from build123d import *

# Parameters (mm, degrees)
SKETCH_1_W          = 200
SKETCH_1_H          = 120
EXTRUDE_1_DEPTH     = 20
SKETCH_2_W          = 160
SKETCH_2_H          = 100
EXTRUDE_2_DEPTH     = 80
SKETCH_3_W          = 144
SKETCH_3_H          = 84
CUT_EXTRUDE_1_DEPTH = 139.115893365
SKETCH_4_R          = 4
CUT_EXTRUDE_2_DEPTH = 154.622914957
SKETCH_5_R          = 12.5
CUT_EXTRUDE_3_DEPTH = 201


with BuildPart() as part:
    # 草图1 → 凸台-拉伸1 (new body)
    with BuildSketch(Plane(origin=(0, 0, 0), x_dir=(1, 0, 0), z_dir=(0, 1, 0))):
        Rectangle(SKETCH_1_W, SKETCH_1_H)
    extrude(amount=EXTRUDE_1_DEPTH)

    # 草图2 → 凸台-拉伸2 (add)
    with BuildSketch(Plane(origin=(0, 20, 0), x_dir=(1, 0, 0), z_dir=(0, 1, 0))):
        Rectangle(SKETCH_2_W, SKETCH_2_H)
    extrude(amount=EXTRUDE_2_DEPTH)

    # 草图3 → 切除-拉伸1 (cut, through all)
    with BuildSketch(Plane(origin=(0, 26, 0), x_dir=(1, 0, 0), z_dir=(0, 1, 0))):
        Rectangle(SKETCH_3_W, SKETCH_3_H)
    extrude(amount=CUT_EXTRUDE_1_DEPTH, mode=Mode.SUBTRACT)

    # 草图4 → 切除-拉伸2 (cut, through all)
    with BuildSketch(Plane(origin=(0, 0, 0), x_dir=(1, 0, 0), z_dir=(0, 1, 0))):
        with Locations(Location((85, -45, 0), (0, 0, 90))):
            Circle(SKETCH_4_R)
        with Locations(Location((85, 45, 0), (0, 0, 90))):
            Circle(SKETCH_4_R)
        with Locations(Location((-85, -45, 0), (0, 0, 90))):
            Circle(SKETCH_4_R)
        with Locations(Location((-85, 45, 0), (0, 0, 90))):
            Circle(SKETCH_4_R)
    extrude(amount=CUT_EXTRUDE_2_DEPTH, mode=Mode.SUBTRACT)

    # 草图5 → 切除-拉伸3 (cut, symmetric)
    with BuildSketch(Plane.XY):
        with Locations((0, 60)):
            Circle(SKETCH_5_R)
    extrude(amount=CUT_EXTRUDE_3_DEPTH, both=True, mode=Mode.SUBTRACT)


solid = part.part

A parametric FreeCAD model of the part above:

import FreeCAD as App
import Part
import Sketcher
from FreeCAD import Vector
Q = App.Units.Quantity

doc = App.newDocument("Part")
body = doc.addObject("PartDesign::Body", "Body")

# Sketch on XZ plane
sketch1 = body.newObject("Sketcher::SketchObject", "Sketch")
sketch1.AttachmentSupport = (doc.getObject("XZ_Plane"), [""])
sketch1.MapMode = "FlatFace"
sketch1.addGeometry(Part.LineSegment(Vector(-100, -60, 0), Vector(-100, 60, 0)), False)
sketch1.addGeometry(Part.LineSegment(Vector(-100, 60, 0), Vector(100, 60, 0)), False)
sketch1.addGeometry(Part.LineSegment(Vector(100, 60, 0), Vector(100, -60, 0)), False)
sketch1.addGeometry(Part.LineSegment(Vector(100, -60, 0), Vector(-100, -60, 0)), False)
sketch1.addConstraint(Sketcher.Constraint("Coincident", 0, 2, 1, 1))
sketch1.addConstraint(Sketcher.Constraint("Coincident", 1, 2, 2, 1))
sketch1.addConstraint(Sketcher.Constraint("Coincident", 2, 2, 3, 1))
sketch1.addConstraint(Sketcher.Constraint("Coincident", 3, 2, 0, 1))
sketch1.addConstraint(Sketcher.Constraint("Vertical", 0))
sketch1.addConstraint(Sketcher.Constraint("Horizontal", 1))
sketch1.addConstraint(Sketcher.Constraint("Vertical", 2))
sketch1.addConstraint(Sketcher.Constraint("Horizontal", 3))
sketch1.addConstraint(Sketcher.Constraint("Symmetric", 0, 2, 2, 2, -1, 1))
sketch1.addConstraint(Sketcher.Constraint("DistanceX", 1, 1, 1, 2, Q("200 mm")))
sketch1.addConstraint(Sketcher.Constraint("DistanceY", 0, 1, 0, 2, Q("120 mm")))
pad1 = body.newObject("PartDesign::Pad", "Pad")
pad1.Profile = sketch1
pad1.Length = 20
pad1.Reversed = True

# Sketch on XZ plane
sketch2 = body.newObject("Sketcher::SketchObject", "Sketch001")
sketch2.AttachmentSupport = (doc.getObject("XZ_Plane"), [""])
sketch2.MapMode = "FlatFace"
sketch2.AttachmentOffset = App.Placement(Vector(0, 0, -20), App.Rotation())
sketch2.addGeometry(Part.LineSegment(Vector(-80, -50, 0), Vector(-80, 50, 0)), False)
sketch2.addGeometry(Part.LineSegment(Vector(-80, 50, 0), Vector(80, 50, 0)), False)
sketch2.addGeometry(Part.LineSegment(Vector(80, 50, 0), Vector(80, -50, 0)), False)
sketch2.addGeometry(Part.LineSegment(Vector(80, -50, 0), Vector(-80, -50, 0)), False)
sketch2.addConstraint(Sketcher.Constraint("Coincident", 0, 2, 1, 1))
sketch2.addConstraint(Sketcher.Constraint("Coincident", 1, 2, 2, 1))
sketch2.addConstraint(Sketcher.Constraint("Coincident", 2, 2, 3, 1))
sketch2.addConstraint(Sketcher.Constraint("Coincident", 3, 2, 0, 1))
sketch2.addConstraint(Sketcher.Constraint("Vertical", 0))
sketch2.addConstraint(Sketcher.Constraint("Horizontal", 1))
sketch2.addConstraint(Sketcher.Constraint("Vertical", 2))
sketch2.addConstraint(Sketcher.Constraint("Horizontal", 3))
sketch2.addConstraint(Sketcher.Constraint("Symmetric", 0, 2, 2, 2, -1, 1))
sketch2.addConstraint(Sketcher.Constraint("DistanceX", 1, 1, 1, 2, Q("160 mm")))
sketch2.addConstraint(Sketcher.Constraint("DistanceY", 0, 1, 0, 2, Q("100 mm")))
pad2 = body.newObject("PartDesign::Pad", "Pad001")
pad2.Profile = sketch2
pad2.Length = 80
pad2.Reversed = True

# Sketch on XZ plane
sketch3 = body.newObject("Sketcher::SketchObject", "Sketch002")
sketch3.AttachmentSupport = (doc.getObject("XZ_Plane"), [""])
sketch3.MapMode = "FlatFace"
sketch3.AttachmentOffset = App.Placement(Vector(0, 0, -26), App.Rotation())
sketch3.addGeometry(Part.LineSegment(Vector(-72, -42, 0), Vector(-72, 42, 0)), False)
sketch3.addGeometry(Part.LineSegment(Vector(-72, 42, 0), Vector(72, 42, 0)), False)
sketch3.addGeometry(Part.LineSegment(Vector(72, 42, 0), Vector(72, -42, 0)), False)
sketch3.addGeometry(Part.LineSegment(Vector(72, -42, 0), Vector(-72, -42, 0)), False)
sketch3.addConstraint(Sketcher.Constraint("Coincident", 0, 2, 1, 1))
sketch3.addConstraint(Sketcher.Constraint("Coincident", 1, 2, 2, 1))
sketch3.addConstraint(Sketcher.Constraint("Coincident", 2, 2, 3, 1))
sketch3.addConstraint(Sketcher.Constraint("Coincident", 3, 2, 0, 1))
sketch3.addConstraint(Sketcher.Constraint("Vertical", 0))
sketch3.addConstraint(Sketcher.Constraint("Horizontal", 1))
sketch3.addConstraint(Sketcher.Constraint("Vertical", 2))
sketch3.addConstraint(Sketcher.Constraint("Horizontal", 3))
sketch3.addConstraint(Sketcher.Constraint("Symmetric", 0, 2, 2, 2, -1, 1))
sketch3.addConstraint(Sketcher.Constraint("DistanceX", 1, 1, 1, 2, Q("144 mm")))
sketch3.addConstraint(Sketcher.Constraint("DistanceY", 0, 1, 0, 2, Q("84 mm")))
pocket1 = body.newObject("PartDesign::Pocket", "Pocket")
pocket1.Profile = sketch3
pocket1.Type = "ThroughAll"

# Sketch on XZ plane
sketch4 = body.newObject("Sketcher::SketchObject", "Sketch003")
sketch4.AttachmentSupport = (doc.getObject("XZ_Plane"), [""])
sketch4.MapMode = "FlatFace"
sketch4.addGeometry(Part.Circle(Vector(85, 45, 0), Vector(0, 0, 1), 4), False)
sketch4.addGeometry(Part.Circle(Vector(85, -45, 0), Vector(0, 0, 1), 4), False)
sketch4.addGeometry(Part.Circle(Vector(-85, 45, 0), Vector(0, 0, 1), 4), False)
sketch4.addGeometry(Part.Circle(Vector(-85, -45, 0), Vector(0, 0, 1), 4), False)
sketch4.addConstraint(Sketcher.Constraint("Equal", 0, 1))
sketch4.addConstraint(Sketcher.Constraint("Equal", 1, 2))
sketch4.addConstraint(Sketcher.Constraint("Equal", 2, 3))
sketch4.addConstraint(Sketcher.Constraint("Symmetric", 1, 3, 2, 3, -1, 1))
sketch4.addConstraint(Sketcher.Constraint("Symmetric", 0, 3, 3, 3, -1, 1))
sketch4.addConstraint(Sketcher.Constraint("Symmetric", 0, 3, 2, 3, -2))
sketch4.addConstraint(Sketcher.Constraint("Diameter", 0, Q("8 mm")))
sketch4.addConstraint(Sketcher.Constraint("DistanceX", -1, 1, 0, 3, Q("85 mm")))
sketch4.addConstraint(Sketcher.Constraint("DistanceY", -1, 1, 0, 3, Q("45 mm")))
pocket2 = body.newObject("PartDesign::Pocket", "Pocket001")
pocket2.Profile = sketch4
pocket2.Type = "ThroughAll"

# Sketch on XY plane
sketch5 = body.newObject("Sketcher::SketchObject", "Sketch004")
sketch5.AttachmentSupport = (doc.getObject("XY_Plane"), [""])
sketch5.MapMode = "FlatFace"
sketch5.addGeometry(Part.Circle(Vector(0, 60, 0), Vector(0, 0, 1), 12.5), False)
sketch5.addConstraint(Sketcher.Constraint("PointOnObject", 0, 3, -2))
sketch5.addConstraint(Sketcher.Constraint("Diameter", 0, Q("25 mm")))
sketch5.addConstraint(Sketcher.Constraint("DistanceY", -1, 1, 0, 3, Q("60 mm")))
pocket3 = body.newObject("PartDesign::Pocket", "Pocket002")
pocket3.Profile = sketch5
pocket3.Length = 402
pocket3.Midplane = True

doc.recompute()
